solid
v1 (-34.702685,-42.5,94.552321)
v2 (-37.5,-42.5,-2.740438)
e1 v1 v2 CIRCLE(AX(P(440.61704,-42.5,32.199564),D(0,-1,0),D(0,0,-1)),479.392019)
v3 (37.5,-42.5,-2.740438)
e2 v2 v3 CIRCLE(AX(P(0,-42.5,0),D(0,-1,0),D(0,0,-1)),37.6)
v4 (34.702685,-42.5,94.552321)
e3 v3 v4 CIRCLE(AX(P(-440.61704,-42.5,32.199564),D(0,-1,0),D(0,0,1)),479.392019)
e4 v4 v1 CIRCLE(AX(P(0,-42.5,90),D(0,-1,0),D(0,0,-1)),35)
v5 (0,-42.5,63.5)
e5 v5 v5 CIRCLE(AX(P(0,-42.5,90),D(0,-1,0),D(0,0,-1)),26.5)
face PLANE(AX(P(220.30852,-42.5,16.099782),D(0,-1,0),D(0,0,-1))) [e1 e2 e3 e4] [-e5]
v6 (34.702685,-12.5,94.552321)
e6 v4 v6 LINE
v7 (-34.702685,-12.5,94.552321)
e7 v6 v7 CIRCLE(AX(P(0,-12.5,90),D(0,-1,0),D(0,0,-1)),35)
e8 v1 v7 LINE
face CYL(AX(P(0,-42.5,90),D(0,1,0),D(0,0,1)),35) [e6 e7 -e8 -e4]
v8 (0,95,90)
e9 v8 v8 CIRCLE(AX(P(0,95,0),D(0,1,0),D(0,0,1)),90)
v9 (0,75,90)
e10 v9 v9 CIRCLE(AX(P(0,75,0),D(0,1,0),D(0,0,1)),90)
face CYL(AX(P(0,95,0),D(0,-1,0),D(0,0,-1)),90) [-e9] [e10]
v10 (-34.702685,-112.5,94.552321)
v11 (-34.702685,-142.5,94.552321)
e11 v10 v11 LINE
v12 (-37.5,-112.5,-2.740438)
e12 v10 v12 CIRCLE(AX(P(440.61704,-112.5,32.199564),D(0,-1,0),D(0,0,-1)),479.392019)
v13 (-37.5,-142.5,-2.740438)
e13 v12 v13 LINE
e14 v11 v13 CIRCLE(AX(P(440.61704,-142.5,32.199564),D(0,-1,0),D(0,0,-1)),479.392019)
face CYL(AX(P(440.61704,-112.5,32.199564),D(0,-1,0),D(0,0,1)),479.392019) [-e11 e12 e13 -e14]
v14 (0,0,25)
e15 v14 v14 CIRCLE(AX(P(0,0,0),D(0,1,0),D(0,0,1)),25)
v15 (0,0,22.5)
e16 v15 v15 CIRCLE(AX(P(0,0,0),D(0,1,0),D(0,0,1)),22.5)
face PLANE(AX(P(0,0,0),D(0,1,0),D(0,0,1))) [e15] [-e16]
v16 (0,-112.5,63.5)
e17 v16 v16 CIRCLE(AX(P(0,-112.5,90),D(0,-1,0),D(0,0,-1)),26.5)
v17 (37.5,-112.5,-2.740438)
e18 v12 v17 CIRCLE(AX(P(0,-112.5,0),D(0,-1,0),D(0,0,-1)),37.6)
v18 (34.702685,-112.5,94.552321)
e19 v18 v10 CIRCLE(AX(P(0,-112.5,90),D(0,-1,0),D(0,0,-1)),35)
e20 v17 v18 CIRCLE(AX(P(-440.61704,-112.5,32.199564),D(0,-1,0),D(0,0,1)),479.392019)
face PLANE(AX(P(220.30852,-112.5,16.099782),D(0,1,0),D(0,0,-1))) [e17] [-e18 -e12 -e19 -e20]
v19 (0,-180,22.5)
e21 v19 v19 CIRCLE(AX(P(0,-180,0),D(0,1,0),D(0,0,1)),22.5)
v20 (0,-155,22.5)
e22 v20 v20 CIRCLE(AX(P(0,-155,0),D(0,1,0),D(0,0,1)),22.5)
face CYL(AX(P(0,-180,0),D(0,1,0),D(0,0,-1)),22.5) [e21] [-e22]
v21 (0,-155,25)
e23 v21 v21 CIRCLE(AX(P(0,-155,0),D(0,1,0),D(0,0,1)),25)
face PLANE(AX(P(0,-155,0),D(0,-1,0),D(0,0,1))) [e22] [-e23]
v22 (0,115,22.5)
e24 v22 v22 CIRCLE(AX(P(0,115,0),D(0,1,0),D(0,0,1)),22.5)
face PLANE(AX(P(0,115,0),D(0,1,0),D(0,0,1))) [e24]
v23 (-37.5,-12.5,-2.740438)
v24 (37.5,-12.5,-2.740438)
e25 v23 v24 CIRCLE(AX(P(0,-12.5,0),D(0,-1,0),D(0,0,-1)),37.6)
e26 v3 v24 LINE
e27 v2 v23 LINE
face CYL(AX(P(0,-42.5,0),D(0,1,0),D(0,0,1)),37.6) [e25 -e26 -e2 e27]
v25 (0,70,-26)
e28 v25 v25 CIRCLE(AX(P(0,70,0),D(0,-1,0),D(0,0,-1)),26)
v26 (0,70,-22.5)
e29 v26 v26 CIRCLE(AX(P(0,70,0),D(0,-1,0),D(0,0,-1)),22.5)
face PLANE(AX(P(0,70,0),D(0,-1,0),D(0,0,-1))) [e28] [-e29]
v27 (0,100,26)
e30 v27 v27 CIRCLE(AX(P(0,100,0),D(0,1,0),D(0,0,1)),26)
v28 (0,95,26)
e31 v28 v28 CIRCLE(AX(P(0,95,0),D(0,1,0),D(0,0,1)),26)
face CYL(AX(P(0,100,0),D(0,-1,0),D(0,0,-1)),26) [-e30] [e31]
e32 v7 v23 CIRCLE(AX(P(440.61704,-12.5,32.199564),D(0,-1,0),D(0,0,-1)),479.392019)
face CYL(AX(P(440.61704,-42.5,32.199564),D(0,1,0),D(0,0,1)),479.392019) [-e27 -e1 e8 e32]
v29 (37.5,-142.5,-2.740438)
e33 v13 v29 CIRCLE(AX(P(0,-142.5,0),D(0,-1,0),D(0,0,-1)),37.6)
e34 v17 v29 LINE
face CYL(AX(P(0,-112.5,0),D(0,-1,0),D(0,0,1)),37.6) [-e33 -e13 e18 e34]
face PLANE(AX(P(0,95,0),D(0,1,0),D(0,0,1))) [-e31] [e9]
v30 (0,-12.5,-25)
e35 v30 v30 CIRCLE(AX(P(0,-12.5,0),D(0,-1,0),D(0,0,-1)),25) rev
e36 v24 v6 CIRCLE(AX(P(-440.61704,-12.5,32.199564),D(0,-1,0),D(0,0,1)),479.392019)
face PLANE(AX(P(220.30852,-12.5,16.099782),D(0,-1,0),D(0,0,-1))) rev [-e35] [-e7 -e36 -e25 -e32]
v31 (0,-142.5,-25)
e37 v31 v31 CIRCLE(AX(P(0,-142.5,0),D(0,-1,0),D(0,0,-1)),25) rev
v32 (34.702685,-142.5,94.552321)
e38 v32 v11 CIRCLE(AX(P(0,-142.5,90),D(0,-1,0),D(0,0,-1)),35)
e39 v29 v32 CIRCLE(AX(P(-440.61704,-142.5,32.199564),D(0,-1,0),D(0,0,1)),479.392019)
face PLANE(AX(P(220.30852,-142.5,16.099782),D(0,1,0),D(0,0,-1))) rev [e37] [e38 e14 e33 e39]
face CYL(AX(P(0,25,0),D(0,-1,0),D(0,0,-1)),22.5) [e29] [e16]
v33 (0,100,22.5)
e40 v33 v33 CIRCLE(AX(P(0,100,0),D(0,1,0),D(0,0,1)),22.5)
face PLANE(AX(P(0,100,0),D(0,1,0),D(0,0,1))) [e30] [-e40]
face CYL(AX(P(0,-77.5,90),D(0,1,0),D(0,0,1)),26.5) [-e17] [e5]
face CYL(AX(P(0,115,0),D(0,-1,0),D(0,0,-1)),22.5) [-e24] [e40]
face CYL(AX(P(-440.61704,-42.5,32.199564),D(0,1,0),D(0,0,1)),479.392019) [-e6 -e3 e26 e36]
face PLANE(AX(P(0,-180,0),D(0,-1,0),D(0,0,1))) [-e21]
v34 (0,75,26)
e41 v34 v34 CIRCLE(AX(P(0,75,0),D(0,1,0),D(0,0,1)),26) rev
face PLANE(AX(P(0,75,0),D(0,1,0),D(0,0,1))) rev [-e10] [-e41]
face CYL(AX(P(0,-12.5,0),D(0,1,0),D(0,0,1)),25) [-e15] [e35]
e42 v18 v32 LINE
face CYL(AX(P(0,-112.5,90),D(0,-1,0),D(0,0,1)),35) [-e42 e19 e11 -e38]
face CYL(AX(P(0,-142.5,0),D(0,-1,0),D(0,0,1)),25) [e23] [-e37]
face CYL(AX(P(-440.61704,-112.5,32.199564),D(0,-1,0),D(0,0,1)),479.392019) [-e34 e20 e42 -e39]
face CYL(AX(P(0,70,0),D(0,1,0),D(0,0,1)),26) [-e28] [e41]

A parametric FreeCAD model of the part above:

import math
import FreeCAD as App
import Part
import Sketcher
from FreeCAD import Vector
Q = App.Units.Quantity

doc = App.newDocument("Part")
params = doc.addObject("Spreadsheet::Sheet", "Params")
for row, (alias, value) in enumerate([
    ("sketch1_diameter", "45 mm"),
    ("pad1_length", "25 mm"),
    ("sketch2_diameter", "50 mm"),
    ("pad2_length", "12.5 mm"),
    ("sketch3_radius", "35 mm"),
    ("sketch3_radius2", "37.6 mm"),
    ("pad3_length", "30 mm"),
    ("sketch4_diameter", "53 mm"),
    ("pad4_length", "35 mm"),
    ("sketch5_diameter", "45 mm"),
    ("pad5_length", "50 mm"),
    ("sketch6_diameter", "180 mm"),
    ("pad6_length", "20 mm"),
    ("sketch7_diameter", "45 mm"),
    ("pad7_length", "20 mm"),
    ("sketch8_diameter", "52 mm"),
    ("pad8_length", "5 mm"),
    ("sketch9_diameter", "52 mm"),
    ("pad9_length", "5 mm"),
], start=1):
    params.set(f"A{row}", alias)
    params.set(f"B{row}", "=" + value)
    params.setAlias(f"B{row}", alias)

body = doc.addObject("PartDesign::Body", "Body")

sketch1 = body.newObject("Sketcher::SketchObject", "Sketch")
sketch1.AttachmentSupport = (doc.getObject("XZ_Plane"), [""])
sketch1.MapMode = "FlatFace"
sketch1.addGeometry(Part.Circle(Vector(0, 0, 0), Vector(0, 0, 1), 22), False)
sketch1.addConstraint([
    Sketcher.Constraint("Coincident", 0, 3, -1, 1),
    Sketcher.Constraint("Diameter", 0, Q("45 mm")),
])
sketch1.setExpression("Constraints[1]", "Params.sketch1_diameter")
pad1 = body.newObject("PartDesign::Pad", "Pad")
pad1.Profile = sketch1
pad1.setExpression("Length", "Params.pad1_length")
pad1.Reversed = True

sketch2 = body.newObject("Sketcher::SketchObject", "Sketch001")
sketch2.AttachmentSupport = (doc.getObject("XZ_Plane"), [""])
sketch2.MapMode = "FlatFace"
sketch2.addGeometry(Part.Circle(Vector(0, 0, 0), Vector(0, 0, 1), 25), False)
sketch2.addConstraint([
    Sketcher.Constraint("Coincident", 0, 3, -1, 1),
    Sketcher.Constraint("Diameter", 0, Q("50 mm")),
])
sketch2.setExpression("Constraints[1]", "Params.sketch2_diameter")
pad2 = body.newObject("PartDesign::Pad", "Pad001")
pad2.Profile = sketch2
pad2.setExpression("Length", "Params.pad2_length")

sketch3 = body.newObject("Sketcher::SketchObject", "Sketch002")
sketch3.AttachmentSupport = (doc.getObject("XZ_Plane"), [""])
sketch3.MapMode = "FlatFace"
sketch3.AttachmentOffset = App.Placement(Vector(0, 0, 12.5), App.Rotation())
sketch3.addGeometry([
    Part.ArcOfCircle(Part.Circle(Vector(0, 0, 0), Vector(0, 0, 1), 38), math.radians(-176), math.radians(-4)),
    Part.ArcOfCircle(Part.Circle(Vector(-441, 32, 0), Vector(0, 0, 1), 479), math.radians(-4.18), math.radians(7.47)),
    Part.ArcOfCircle(Part.Circle(Vector(0, 90, 0), Vector(0, 0, 1), 35), math.radians(7), math.radians(173)),
    Part.ArcOfCircle(Part.Circle(Vector(441, 32, 0), Vector(0, 0, 1), 479), math.radians(172.53), math.radians(184.18)),
], False)
sketch3.addConstraint([
    Sketcher.Constraint("Tangent", 0, 2, 1, 1),
    Sketcher.Constraint("Tangent", 1, 2, 2, 1),
    Sketcher.Constraint("Tangent", 2, 2, 3, 1),
    Sketcher.Constraint("Tangent", 3, 2, 0, 1),
    Sketcher.Constraint("Coincident", 0, 3, -1, 1),
    Sketcher.Constraint("Equal", 1, 3),
    Sketcher.Constraint("PointOnObject", 2, 3, -2),
    Sketcher.Constraint("Radius", 2, Q("35 mm")),
    Sketcher.Constraint("Radius", 0, Q("37.6 mm")),
    Sketcher.Constraint("DistanceY", -1, 1, 2, 3, Q("90 mm")),
    Sketcher.Constraint("Radius", 1, Q("479.392019 mm")),
])
sketch3.setExpression("Constraints[7]", "Params.sketch3_radius")
sketch3.setExpression("Constraints[8]", "Params.sketch3_radius2")
pad3 = body.newObject("PartDesign::Pad", "Pad002")
pad3.Profile = sketch3
pad3.setExpression("Length", "Params.pad3_length")

sketch4 = body.newObject("Sketcher::SketchObject", "Sketch003")
sketch4.AttachmentSupport = (doc.getObject("XZ_Plane"), [""])
sketch4.MapMode = "FlatFace"
sketch4.AttachmentOffset = App.Placement(Vector(0, 0, 42.5), App.Rotation())
sketch4.addGeometry(Part.Circle(Vector(0, 90, 0), Vector(0, 0, 1), 26), False)
sketch4.addConstraint([
    Sketcher.Constraint("PointOnObject", 0, 3, -2),
    Sketcher.Constraint("Diameter", 0, Q("53 mm")),
    Sketcher.Constraint("DistanceY", -1, 1, 0, 3, Q("90 mm")),
])
sketch4.setExpression("Constraints[1]", "Params.sketch4_diameter")
pad4 = body.newObject("PartDesign::Pad", "Pad003")
pad4.Profile = sketch4
pad4.setExpression("Length", "Params.pad4_length")
body2 = doc.addObject("PartDesign::Body", "Body001")
doc.recompute()

body2.BaseFeature = body
doc.recompute()

mirroring = doc.addObject("Part::Mirroring", "Mirroring")
mirroring.Source = body
mirroring.Base = Vector(0, -77.5, 90)
mirroring.Normal = Vector(0, -1, 0)
body3 = doc.addObject("PartDesign::Body", "Body002")
body3.BaseFeature = mirroring
boolean = body2.newObject("PartDesign::Boolean", "Boolean")
boolean.Type = "Fuse"
boolean.addObjects([body3])
doc.recompute()

sketch5 = body2.newObject("Sketcher::SketchObject", "Sketch004")
sketch5.AttachmentSupport = (doc.getObject("XZ_Plane001"), [""])
sketch5.MapMode = "FlatFace"
sketch5.AttachmentOffset = App.Placement(Vector(0, 0, -25), App.Rotation())
sketch5.addGeometry(Part.Circle(Vector(0, 0, 0), Vector(0, 0, 1), 22), False)
sketch5.addConstraint([
    Sketcher.Constraint("Coincident", 0, 3, -1, 1),
    Sketcher.Constraint("Diameter", 0, Q("45 mm")),
])
sketch5.setExpression("Constraints[1]", "Params.sketch5_diameter")
pad5 = body2.newObject("PartDesign::Pad", "Pad004")
pad5.Profile = sketch5
pad5.setExpression("Length", "Params.pad5_length")
pad5.Reversed = True

sketch6 = body2.newObject("Sketcher::SketchObject", "Sketch005")
sketch6.AttachmentSupport = (doc.getObject("XZ_Plane001"), [""])
sketch6.MapMode = "FlatFace"
sketch6.AttachmentOffset = App.Placement(Vector(0, 0, -75), App.Rotation())
sketch6.addGeometry(Part.Circle(Vector(0, 0, 0), Vector(0, 0, 1), 90), False)
sketch6.addConstraint([
    Sketcher.Constraint("Coincident", 0, 3, -1, 1),
    Sketcher.Constraint("Diameter", 0, Q("180 mm")),
])
sketch6.setExpression("Constraints[1]", "Params.sketch6_diameter")
pad6 = body2.newObject("PartDesign::Pad", "Pad005")
pad6.Profile = sketch6
pad6.setExpression("Length", "Params.pad6_length")
pad6.Reversed = True

sketch7 = body2.newObject("Sketcher::SketchObject", "Sketch006")
sketch7.AttachmentSupport = (doc.getObject("XZ_Plane001"), [""])
sketch7.MapMode = "FlatFace"
sketch7.AttachmentOffset = App.Placement(Vector(0, 0, -95), App.Rotation())
sketch7.addGeometry(Part.Circle(Vector(0, 0, 0), Vector(0, 0, 1), 22), False)
sketch7.addConstraint([
    Sketcher.Constraint("Coincident", 0, 3, -1, 1),
    Sketcher.Constraint("Diameter", 0, Q("45 mm")),
])
sketch7.setExpression("Constraints[1]", "Params.sketch7_diameter")
pad7 = body2.newObject("PartDesign::Pad", "Pad006")
pad7.Profile = sketch7
pad7.setExpression("Length", "Params.pad7_length")
pad7.Reversed = True

sketch8 = body2.newObject("Sketcher::SketchObject", "Sketch007")
sketch8.AttachmentSupport = (doc.getObject("XZ_Plane001"), [""])
sketch8.MapMode = "FlatFace"
sketch8.AttachmentOffset = App.Placement(Vector(0, 0, -75), App.Rotation())
sketch8.addGeometry(Part.Circle(Vector(0, 0, 0), Vector(0, 0, 1), 26), False)
sketch8.addConstraint([
    Sketcher.Constraint("Coincident", 0, 3, -1, 1),
    Sketcher.Constraint("Diameter", 0, Q("52 mm")),
])
sketch8.setExpression("Constraints[1]", "Params.sketch8_diameter")
pad8 = body2.newObject("PartDesign::Pad", "Pad007")
pad8.Profile = sketch8
pad8.setExpression("Length", "Params.pad8_length")

sketch9 = body2.newObject("Sketcher::SketchObject", "Sketch008")
sketch9.AttachmentSupport = (doc.getObject("XZ_Plane001"), [""])
sketch9.MapMode = "FlatFace"
sketch9.AttachmentOffset = App.Placement(Vector(0, 0, -100), App.Rotation())
sketch9.addGeometry(Part.Circle(Vector(0, 0, 0), Vector(0, 0, 1), 26), False)
sketch9.addConstraint([
    Sketcher.Constraint("Coincident", 0, 3, -1, 1),
    Sketcher.Constraint("Diameter", 0, Q("52 mm")),
])
sketch9.setExpression("Constraints[1]", "Params.sketch9_diameter")
pad9 = body2.newObject("PartDesign::Pad", "Pad008")
pad9.Profile = sketch9
pad9.setExpression("Length", "Params.pad9_length")
mirroring.Visibility = False

doc.recompute()
